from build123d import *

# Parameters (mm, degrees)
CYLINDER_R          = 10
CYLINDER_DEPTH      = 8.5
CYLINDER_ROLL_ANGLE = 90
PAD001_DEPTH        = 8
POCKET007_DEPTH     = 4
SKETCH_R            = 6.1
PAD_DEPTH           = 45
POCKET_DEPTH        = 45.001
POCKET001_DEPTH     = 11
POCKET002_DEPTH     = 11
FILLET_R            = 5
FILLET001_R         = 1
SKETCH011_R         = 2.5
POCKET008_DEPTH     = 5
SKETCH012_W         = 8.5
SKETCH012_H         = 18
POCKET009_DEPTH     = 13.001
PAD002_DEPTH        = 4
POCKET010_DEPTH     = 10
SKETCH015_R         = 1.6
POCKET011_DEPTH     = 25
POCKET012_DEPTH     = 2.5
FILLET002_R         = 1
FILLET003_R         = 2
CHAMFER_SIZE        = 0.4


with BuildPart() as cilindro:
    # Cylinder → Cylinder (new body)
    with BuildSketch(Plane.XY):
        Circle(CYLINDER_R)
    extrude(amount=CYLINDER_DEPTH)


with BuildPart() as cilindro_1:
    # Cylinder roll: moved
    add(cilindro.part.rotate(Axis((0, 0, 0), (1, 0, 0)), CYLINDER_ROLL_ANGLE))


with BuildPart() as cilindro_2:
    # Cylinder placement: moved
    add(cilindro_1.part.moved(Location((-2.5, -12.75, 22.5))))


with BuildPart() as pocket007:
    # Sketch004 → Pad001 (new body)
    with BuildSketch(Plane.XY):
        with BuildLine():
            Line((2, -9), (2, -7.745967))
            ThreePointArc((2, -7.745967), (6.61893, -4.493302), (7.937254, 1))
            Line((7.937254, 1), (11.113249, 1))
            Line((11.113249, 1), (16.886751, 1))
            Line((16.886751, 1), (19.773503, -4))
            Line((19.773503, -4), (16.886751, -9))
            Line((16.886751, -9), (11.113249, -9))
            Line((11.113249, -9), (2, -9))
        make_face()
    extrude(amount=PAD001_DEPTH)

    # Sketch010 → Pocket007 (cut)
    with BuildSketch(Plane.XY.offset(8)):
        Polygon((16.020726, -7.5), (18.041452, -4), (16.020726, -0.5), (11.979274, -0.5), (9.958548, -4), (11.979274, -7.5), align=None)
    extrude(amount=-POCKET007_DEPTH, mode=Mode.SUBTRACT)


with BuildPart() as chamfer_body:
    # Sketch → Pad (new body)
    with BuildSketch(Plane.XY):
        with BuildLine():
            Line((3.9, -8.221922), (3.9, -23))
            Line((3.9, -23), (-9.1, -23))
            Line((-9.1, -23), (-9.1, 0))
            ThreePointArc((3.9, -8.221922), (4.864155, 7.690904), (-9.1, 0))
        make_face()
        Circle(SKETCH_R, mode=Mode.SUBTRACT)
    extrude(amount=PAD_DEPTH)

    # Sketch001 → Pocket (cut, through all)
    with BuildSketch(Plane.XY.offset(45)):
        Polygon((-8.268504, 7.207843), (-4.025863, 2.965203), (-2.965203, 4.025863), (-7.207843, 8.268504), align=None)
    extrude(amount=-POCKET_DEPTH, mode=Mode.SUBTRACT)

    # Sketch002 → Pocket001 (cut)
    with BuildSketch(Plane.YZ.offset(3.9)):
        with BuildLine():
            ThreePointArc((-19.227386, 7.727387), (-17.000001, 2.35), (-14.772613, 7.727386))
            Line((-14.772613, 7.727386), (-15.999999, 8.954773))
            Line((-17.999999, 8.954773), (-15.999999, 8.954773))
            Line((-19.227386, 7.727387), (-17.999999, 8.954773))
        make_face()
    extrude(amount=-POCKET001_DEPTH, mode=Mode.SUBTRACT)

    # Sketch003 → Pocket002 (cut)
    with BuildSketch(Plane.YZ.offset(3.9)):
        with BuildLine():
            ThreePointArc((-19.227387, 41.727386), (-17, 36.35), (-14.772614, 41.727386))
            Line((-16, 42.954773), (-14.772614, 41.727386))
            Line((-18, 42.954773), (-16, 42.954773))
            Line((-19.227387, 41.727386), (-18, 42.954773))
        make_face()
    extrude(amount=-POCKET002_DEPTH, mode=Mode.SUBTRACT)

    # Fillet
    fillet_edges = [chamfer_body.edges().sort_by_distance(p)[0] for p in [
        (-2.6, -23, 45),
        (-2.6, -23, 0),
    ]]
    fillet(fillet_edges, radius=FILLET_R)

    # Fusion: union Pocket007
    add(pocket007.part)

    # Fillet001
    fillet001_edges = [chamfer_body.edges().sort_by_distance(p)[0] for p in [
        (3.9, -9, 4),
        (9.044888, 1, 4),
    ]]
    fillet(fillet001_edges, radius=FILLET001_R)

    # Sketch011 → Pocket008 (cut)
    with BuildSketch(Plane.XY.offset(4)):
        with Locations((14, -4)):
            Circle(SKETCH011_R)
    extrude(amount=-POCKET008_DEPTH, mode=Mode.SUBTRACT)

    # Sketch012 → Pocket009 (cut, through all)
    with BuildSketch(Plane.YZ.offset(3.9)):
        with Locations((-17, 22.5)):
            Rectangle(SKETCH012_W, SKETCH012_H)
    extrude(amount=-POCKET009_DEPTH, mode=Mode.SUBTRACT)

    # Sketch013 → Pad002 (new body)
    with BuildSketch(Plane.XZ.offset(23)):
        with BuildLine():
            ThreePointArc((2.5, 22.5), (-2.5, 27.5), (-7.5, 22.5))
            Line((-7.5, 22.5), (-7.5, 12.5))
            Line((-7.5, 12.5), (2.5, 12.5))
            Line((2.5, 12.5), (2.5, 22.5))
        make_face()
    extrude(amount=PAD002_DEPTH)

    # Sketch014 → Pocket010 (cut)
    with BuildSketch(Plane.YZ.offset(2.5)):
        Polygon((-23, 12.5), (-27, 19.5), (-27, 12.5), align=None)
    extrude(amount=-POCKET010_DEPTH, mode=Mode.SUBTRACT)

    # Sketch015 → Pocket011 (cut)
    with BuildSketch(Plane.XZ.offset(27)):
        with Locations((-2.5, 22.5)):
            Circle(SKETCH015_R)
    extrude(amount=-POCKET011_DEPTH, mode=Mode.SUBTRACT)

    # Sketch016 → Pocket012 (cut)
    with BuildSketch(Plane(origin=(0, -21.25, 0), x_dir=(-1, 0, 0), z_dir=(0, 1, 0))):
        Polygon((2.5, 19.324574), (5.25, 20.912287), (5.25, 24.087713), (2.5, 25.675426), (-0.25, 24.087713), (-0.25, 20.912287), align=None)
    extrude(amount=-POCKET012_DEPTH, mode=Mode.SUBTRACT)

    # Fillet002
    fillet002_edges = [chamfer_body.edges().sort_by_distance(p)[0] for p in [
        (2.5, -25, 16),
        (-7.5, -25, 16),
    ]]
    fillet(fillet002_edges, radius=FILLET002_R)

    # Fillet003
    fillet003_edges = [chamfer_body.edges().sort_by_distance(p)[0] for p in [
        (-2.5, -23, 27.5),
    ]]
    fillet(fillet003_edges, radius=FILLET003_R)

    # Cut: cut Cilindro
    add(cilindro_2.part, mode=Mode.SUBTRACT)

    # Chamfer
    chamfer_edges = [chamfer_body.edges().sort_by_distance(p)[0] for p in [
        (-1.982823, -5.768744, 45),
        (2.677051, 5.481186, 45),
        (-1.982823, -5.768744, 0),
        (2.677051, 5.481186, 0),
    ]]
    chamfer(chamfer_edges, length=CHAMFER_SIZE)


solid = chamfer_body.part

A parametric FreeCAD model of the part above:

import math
import FreeCAD as App
import Part
import Sketcher
Q = App.Units.Quantity


def edges_at(feature, points):
    """Names of the edges that pass closest to the given points."""
    edges = feature.Shape.Edges
    near = lambda p: min(range(len(edges)), key=lambda i: edges[i].distToShape(Part.Vertex(*p))[0])
    return sorted({f"Edge{near(p) + 1}" for p in points})


def add_polygon(sketch, points):
    """Adds a closed chain of lines whose ends are joined by coincident constraints."""
    first, n = sketch.GeometryCount, len(points)
    for a, b in zip(points, points[1:] + points[:1]):
        sketch.addGeometry(Part.LineSegment(App.Vector(*a, 0), App.Vector(*b, 0)), False)
    for i in range(n):
        sketch.addConstraint(Sketcher.Constraint("Coincident", first + i, 2, first + (i + 1) % n, 1))

doc = App.newDocument("Part")
body = doc.addObject("PartDesign::Body", "Body")

# Sketch on XY plane
sketch1 = body.newObject("Sketcher::SketchObject", "Sketch")
sketch1.AttachmentSupport = (doc.getObject("XY_Plane"), [""])
sketch1.MapMode = "FlatFace"
sketch1.addGeometry(Part.Circle(App.Vector(0, 0, 0), App.Vector(0, 0, 1), 10), False)
sketch1.addConstraint(Sketcher.Constraint("Coincident", 0, 3, -1, 1))
sketch1.addConstraint(Sketcher.Constraint("Diameter", 0, Q("20 mm")))
pad1 = body.newObject("PartDesign::Pad", "Pad")
pad1.Profile = sketch1
pad1.Length = 8.5
body2 = doc.addObject("PartDesign::Body", "Body001")
doc.recompute()

body.Placement = App.Placement(App.Vector(0, 0, 0), App.Rotation(App.Vector(1, 0, 0), 90))
boolean = body2.newObject("PartDesign::Boolean", "Boolean")
boolean.Type = "Fuse"
boolean.addObjects([body])
body3 = doc.addObject("PartDesign::Body", "Body002")
doc.recompute()

body2.Placement = App.Placement(App.Vector(-2.5, -12.75, 22.5), App.Rotation(App.Vector(0, 0, 1), 0))
boolean2 = body3.newObject("PartDesign::Boolean", "Boolean001")
boolean2.Type = "Fuse"
boolean2.addObjects([body2])
body4 = doc.addObject("PartDesign::Body", "Body003")

# Sketch on XY plane
sketch2 = body4.newObject("Sketcher::SketchObject", "Sketch001")
sketch2.AttachmentSupport = (doc.getObject("XY_Plane003"), [""])
sketch2.MapMode = "FlatFace"
sketch2.addGeometry(Part.LineSegment(App.Vector(2, -7.7, 0), App.Vector(2, -9, 0)), False)
sketch2.addGeometry(Part.LineSegment(App.Vector(2, -9, 0), App.Vector(16.9, -9, 0)), False)
sketch2.addGeometry(Part.LineSegment(App.Vector(16.9, -9, 0), App.Vector(19.8, -4, 0)), False)
sketch2.addGeometry(Part.LineSegment(App.Vector(19.8, -4, 0), App.Vector(16.9, 1, 0)), False)
sketch2.addGeometry(Part.LineSegment(App.Vector(16.9, 1, 0), App.Vector(7.9, 1, 0)), False)
sketch2.addGeometry(Part.ArcOfCircle(Part.Circle(App.Vector(0, 0, 0), App.Vector(0, 0, 1), 8), math.radians(-76), math.radians(7)), False)
sketch2.addConstraint(Sketcher.Constraint("Coincident", 0, 2, 1, 1))
sketch2.addConstraint(Sketcher.Constraint("Coincident", 1, 2, 2, 1))
sketch2.addConstraint(Sketcher.Constraint("Coincident", 2, 2, 3, 1))
sketch2.addConstraint(Sketcher.Constraint("Coincident", 3, 2, 4, 1))
sketch2.addConstraint(Sketcher.Constraint("Coincident", 4, 2, 5, 2))
sketch2.addConstraint(Sketcher.Constraint("Coincident", 5, 1, 0, 1))
sketch2.addConstraint(Sketcher.Constraint("Vertical", 0))
sketch2.addConstraint(Sketcher.Constraint("Horizontal", 1))
sketch2.addConstraint(Sketcher.Constraint("Horizontal", 4))
sketch2.addConstraint(Sketcher.Constraint("Coincident", 5, 3, -1, 1))
sketch2.addConstraint(Sketcher.Constraint("Vertical", 1, 2, 3, 2))
sketch2.addConstraint(Sketcher.Constraint("Equal", 2, 3))
sketch2.addConstraint(Sketcher.Constraint("Radius", 5, Q("8.000001 mm")))
sketch2.addConstraint(Sketcher.Constraint("Angle", 2, Q("59.999994 deg")))
sketch2.addConstraint(Sketcher.Constraint("DistanceX", -1, 1, 0, 2, Q("2 mm")))
sketch2.addConstraint(Sketcher.Constraint("DistanceY", 0, 2, -1, 1, Q("9 mm")))
sketch2.addConstraint(Sketcher.Constraint("DistanceY", 2, 2, -1, 1, Q("4 mm")))
sketch2.addConstraint(Sketcher.Constraint("DistanceX", 1, 1, 1, 2, Q("14.886751 mm")))
pad2 = body4.newObject("PartDesign::Pad", "Pad001")
pad2.Profile = sketch2
pad2.Length = 8

# Sketch on XY plane
sketch3 = body4.newObject("Sketcher::SketchObject", "Sketch002")
sketch3.AttachmentSupport = (doc.getObject("XY_Plane003"), [""])
sketch3.MapMode = "FlatFace"
sketch3.AttachmentOffset = App.Placement(App.Vector(0, 0, 8), App.Rotation())
add_polygon(sketch3, [(16, -7.5), (18, -4), (16, -0.5), (12, -0.5), (10, -4), (12, -7.5)])  # lines 0-5
sketch3.addConstraint(Sketcher.Constraint("Horizontal", 2))
sketch3.addConstraint(Sketcher.Constraint("Horizontal", 5))
sketch3.addConstraint(Sketcher.Constraint("Parallel", 0, 3))
sketch3.addConstraint(Sketcher.Constraint("Parallel", 1, 4))
sketch3.addConstraint(Sketcher.Constraint("Horizontal", 0, 2, 3, 2))
sketch3.addConstraint(Sketcher.Constraint("Vertical", 2, 2, 4, 2))
sketch3.addConstraint(Sketcher.Constraint("Vertical", 1, 2, 5, 2))
sketch3.addConstraint(Sketcher.Constraint("Angle", 0, Q("59.999999 deg")))
sketch3.addConstraint(Sketcher.Constraint("DistanceY", 0, 2, -1, 1, Q("4 mm")))
sketch3.addConstraint(Sketcher.Constraint("DistanceY", 4, 2, 2, 2, Q("7 mm")))
sketch3.addConstraint(Sketcher.Constraint("DistanceX", 2, 2, 2, 1, Q("4.041452 mm")))
sketch3.addConstraint(Sketcher.Constraint("DistanceX", -1, 1, 0, 2, Q("18.041452 mm")))
pocket1 = body4.newObject("PartDesign::Pocket", "Pocket")
pocket1.Profile = sketch3
pocket1.Length = 4
body5 = doc.addObject("PartDesign::Body", "Body004")

# Sketch on XY plane
sketch4 = body5.newObject("Sketcher::SketchObject", "Sketch003")
sketch4.AttachmentSupport = (doc.getObject("XY_Plane004"), [""])
sketch4.MapMode = "FlatFace"
sketch4.addGeometry(Part.LineSegment(App.Vector(4, -23, 0), App.Vector(4, -8, 0)), False)
sketch4.addGeometry(Part.ArcOfCircle(Part.Circle(App.Vector(0, 0, 0), App.Vector(0, 0, 1), 9), math.radians(-65), math.radians(180)), False)
sketch4.addGeometry(Part.LineSegment(App.Vector(-9, 0, 0), App.Vector(-9, -23, 0)), False)
sketch4.addGeometry(Part.LineSegment(App.Vector(-9, -23, 0), App.Vector(4, -23, 0)), False)
sketch4.addGeometry(Part.Circle(App.Vector(0, 0, 0), App.Vector(0, 0, 1), 6), False)
sketch4.addConstraint(Sketcher.Constraint("Coincident", 0, 2, 1, 1))
sketch4.addConstraint(Sketcher.Constraint("Tangent", 1, 2, 2, 1))
sketch4.addConstraint(Sketcher.Constraint("Coincident", 2, 2, 3, 1))
sketch4.addConstraint(Sketcher.Constraint("Coincident", 3, 2, 0, 1))
sketch4.addConstraint(Sketcher.Constraint("Vertical", 0))
sketch4.addConstraint(Sketcher.Constraint("Vertical", 2))
sketch4.addConstraint(Sketcher.Constraint("Horizontal", 3))
sketch4.addConstraint(Sketcher.Constraint("Coincident", 1, 3, -1, 1))
sketch4.addConstraint(Sketcher.Constraint("Coincident", 4, 3, -1, 1))
sketch4.addConstraint(Sketcher.Constraint("Diameter", 4, Q("12.2 mm")))
sketch4.addConstraint(Sketcher.Constraint("Radius", 1, Q("9.1 mm")))
sketch4.addConstraint(Sketcher.Constraint("DistanceX", 3, 1, 3, 2, Q("13 mm")))
sketch4.addConstraint(Sketcher.Constraint("DistanceY", 2, 2, 2, 1, Q("23 mm")))
pad3 = body5.newObject("PartDesign::Pad", "Pad002")
pad3.Profile = sketch4
pad3.Length = 45

# Sketch on XY plane
sketch5 = body5.newObject("Sketcher::SketchObject", "Sketch004")
sketch5.AttachmentSupport = (doc.getObject("XY_Plane004"), [""])
sketch5.MapMode = "FlatFace"
sketch5.AttachmentOffset = App.Placement(App.Vector(0, 0, 45), App.Rotation())
add_polygon(sketch5, [(-8.3, 7.2), (-4, 3), (-3, 4), (-7.2, 8.3)])  # lines 0-3
sketch5.addConstraint(Sketcher.Constraint("Perpendicular", 0, 1))
sketch5.addConstraint(Sketcher.Constraint("Perpendicular", 1, 2))
sketch5.addConstraint(Sketcher.Constraint("Perpendicular", 2, 3))
sketch5.addConstraint(Sketcher.Constraint("Angle", 0, Q("-44.999993 deg")))
sketch5.addConstraint(Sketcher.Constraint("Distance", 0, Q("6 mm")))
sketch5.addConstraint(Sketcher.Constraint("Distance", 1, Q("1.5 mm")))
sketch5.addConstraint(Sketcher.Constraint("DistanceX", 0, 2, -1, 1, Q("4.025863 mm")))
sketch5.addConstraint(Sketcher.Constraint("DistanceY", -1, 1, 0, 2, Q("2.965203 mm")))
pocket2 = body5.newObject("PartDesign::Pocket", "Pocket001")
pocket2.Profile = sketch5
pocket2.Type = "ThroughAll"

# Sketch on YZ plane
sketch6 = body5.newObject("Sketcher::SketchObject", "Sketch005")
sketch6.AttachmentSupport = (doc.getObject("YZ_Plane004"), [""])
sketch6.MapMode = "FlatFace"
sketch6.AttachmentOffset = App.Placement(App.Vector(0, 0, 3.9), App.Rotation())
sketch6.addGeometry(Part.ArcOfCircle(Part.Circle(App.Vector(-17, 5.5, 0), App.Vector(0, 0, 1), 3.2), math.radians(135), math.radians(405)), False)
sketch6.addGeometry(Part.LineSegment(App.Vector(-14.8, 7.7, 0), App.Vector(-16, 9, 0)), False)
sketch6.addGeometry(Part.LineSegment(App.Vector(-16, 9, 0), App.Vector(-18, 9, 0)), False)
sketch6.addGeometry(Part.LineSegment(App.Vector(-18, 9, 0), App.Vector(-19.2, 7.7, 0)), False)
sketch6.addConstraint(Sketcher.Constraint("Tangent", 0, 2, 1, 1))
sketch6.addConstraint(Sketcher.Constraint("Coincident", 1, 2, 2, 1))
sketch6.addConstraint(Sketcher.Constraint("Coincident", 2, 2, 3, 1))
sketch6.addConstraint(Sketcher.Constraint("Tangent", 3, 2, 0, 1))
sketch6.addConstraint(Sketcher.Constraint("Horizontal", 2))
sketch6.addConstraint(Sketcher.Constraint("Perpendicular", 1, 3))
sketch6.addConstraint(Sketcher.Constraint("Horizontal", 0, 2, 3, 2))
sketch6.addConstraint(Sketcher.Constraint("DistanceX", 2, 2, 2, 1, Q("2 mm")))
sketch6.addConstraint(Sketcher.Constraint("Radius", 0, Q("3.15 mm")))
sketch6.addConstraint(Sketcher.Constraint("DistanceX", 0, 3, -1, 1, Q("17 mm")))
sketch6.addConstraint(Sketcher.Constraint("DistanceY", -1, 1, 0, 3, Q("5.5 mm")))
pocket3 = body5.newObject("PartDesign::Pocket", "Pocket002")
pocket3.Profile = sketch6
pocket3.Length = 11

# Sketch on YZ plane
sketch7 = body5.newObject("Sketcher::SketchObject", "Sketch006")
sketch7.AttachmentSupport = (doc.getObject("YZ_Plane004"), [""])
sketch7.MapMode = "FlatFace"
sketch7.AttachmentOffset = App.Placement(App.Vector(0, 0, 3.9), App.Rotation())
sketch7.addGeometry(Part.ArcOfCircle(Part.Circle(App.Vector(-17, 39.5, 0), App.Vector(0, 0, 1), 3.1), math.radians(135), math.radians(405)), False)
sketch7.addGeometry(Part.LineSegment(App.Vector(-14.8, 41.7, 0), App.Vector(-16, 43, 0)), False)
sketch7.addGeometry(Part.LineSegment(App.Vector(-16, 43, 0), App.Vector(-18, 43, 0)), False)
sketch7.addGeometry(Part.LineSegment(App.Vector(-18, 43, 0), App.Vector(-19.2, 41.7, 0)), False)
sketch7.addConstraint(Sketcher.Constraint("Tangent", 0, 2, 1, 1))
sketch7.addConstraint(Sketcher.Constraint("Coincident", 1, 2, 2, 1))
sketch7.addConstraint(Sketcher.Constraint("Coincident", 2, 2, 3, 1))
sketch7.addConstraint(Sketcher.Constraint("Tangent", 3, 2, 0, 1))
sketch7.addConstraint(Sketcher.Constraint("Horizontal", 2))
sketch7.addConstraint(Sketcher.Constraint("Perpendicular", 1, 3))
sketch7.addConstraint(Sketcher.Constraint("Horizontal", 0, 2, 3, 2))
sketch7.addConstraint(Sketcher.Constraint("DistanceX", 2, 2, 2, 1, Q("2 mm")))
sketch7.addConstraint(Sketcher.Constraint("Radius", 0, Q("3.15 mm")))
sketch7.addConstraint(Sketcher.Constraint("DistanceX", 0, 3, -1, 1, Q("17 mm")))
sketch7.addConstraint(Sketcher.Constraint("DistanceY", -1, 1, 0, 3, Q("39.5 mm")))
pocket4 = body5.newObject("PartDesign::Pocket", "Pocket003")
pocket4.Profile = sketch7
pocket4.Length = 11
doc.recompute()

fillet = body5.newObject("PartDesign::Fillet", "Fillet")
fillet.Base = (pocket4, edges_at(pocket4, [(-2.6, -23, 45), (-2.6, -23, 0)]))
fillet.Radius = 5
doc.recompute()

boolean3 = body5.newObject("PartDesign::Boolean", "Boolean002")
boolean3.Type = "Fuse"
boolean3.addObjects([body4])
doc.recompute()

fillet2 = body5.newObject("PartDesign::Fillet", "Fillet001")
fillet2.Base = (boolean3, edges_at(boolean3, [(3.9, -9, 4), (9.045, 1, 4)]))
fillet2.Radius = 1

# Sketch on XY plane
sketch8 = body5.newObject("Sketcher::SketchObject", "Sketch007")
sketch8.AttachmentSupport = (doc.getObject("XY_Plane004"), [""])
sketch8.MapMode = "FlatFace"
sketch8.AttachmentOffset = App.Placement(App.Vector(0, 0, 4), App.Rotation())
sketch8.addGeometry(Part.Circle(App.Vector(14, -4, 0), App.Vector(0, 0, 1), 2.5), False)
sketch8.addConstraint(Sketcher.Constraint("Diameter", 0, Q("5 mm")))
sketch8.addConstraint(Sketcher.Constraint("DistanceX", -1, 1, 0, 3, Q("14 mm")))
sketch8.addConstraint(Sketcher.Constraint("DistanceY", 0, 3, -1, 1, Q("4 mm")))
pocket5 = body5.newObject("PartDesign::Pocket", "Pocket004")
pocket5.Profile = sketch8
pocket5.Length = 5

# Sketch on YZ plane
sketch9 = body5.newObject("Sketcher::SketchObject", "Sketch008")
sketch9.AttachmentSupport = (doc.getObject("YZ_Plane004"), [""])
sketch9.MapMode = "FlatFace"
sketch9.AttachmentOffset = App.Placement(App.Vector(0, 0, 3.9), App.Rotation())
add_polygon(sketch9, [(-21, 32), (-21, 14), (-13, 14), (-13, 32)])  # lines 0-3
sketch9.addConstraint(Sketcher.Constraint("Vertical", 0))
sketch9.addConstraint(Sketcher.Constraint("Horizontal", 1))
sketch9.addConstraint(Sketcher.Constraint("Vertical", 2))
sketch9.addConstraint(Sketcher.Constraint("Horizontal", 3))
sketch9.addConstraint(Sketcher.Constraint("DistanceY", 0, 2, 0, 1, Q("18 mm")))
sketch9.addConstraint(Sketcher.Constraint("DistanceX", 1, 1, 1, 2, Q("8.5 mm")))
sketch9.addConstraint(Sketcher.Constraint("DistanceY", -1, 1, 0, 2, Q("13.5 mm")))
sketch9.addConstraint(Sketcher.Constraint("DistanceX", 0, 2, -1, 1, Q("21.25 mm")))
pocket6 = body5.newObject("PartDesign::Pocket", "Pocket005")
pocket6.Profile = sketch9
pocket6.Type = "ThroughAll"

# Sketch on XZ plane
sketch10 = body5.newObject("Sketcher::SketchObject", "Sketch009")
sketch10.AttachmentSupport = (doc.getObject("XZ_Plane004"), [""])
sketch10.MapMode = "FlatFace"
sketch10.AttachmentOffset = App.Placement(App.Vector(0, 0, 23), App.Rotation())
sketch10.addGeometry(Part.ArcOfCircle(Part.Circle(App.Vector(-2, 22, 0), App.Vector(0, 0, 1), 5), math.radians(0), math.radians(180)), False)
sketch10.addGeometry(Part.LineSegment(App.Vector(-8, 22, 0), App.Vector(-8, 12, 0)), False)
sketch10.addGeometry(Part.LineSegment(App.Vector(-8, 12, 0), App.Vector(2, 12, 0)), False)
sketch10.addGeometry(Part.LineSegment(App.Vector(2, 12, 0), App.Vector(2, 22, 0)), False)
sketch10.addConstraint(Sketcher.Constraint("Tangent", 0, 2, 1, 1))
sketch10.addConstraint(Sketcher.Constraint("Coincident", 1, 2, 2, 1))
sketch10.addConstraint(Sketcher.Constraint("Coincident", 2, 2, 3, 1))
sketch10.addConstraint(Sketcher.Constraint("Tangent", 3, 2, 0, 1))
sketch10.addConstraint(Sketcher.Constraint("Vertical", 1))
sketch10.addConstraint(Sketcher.Constraint("Horizontal", 2))
sketch10.addConstraint(Sketcher.Constraint("Vertical", 3))
sketch10.addConstraint(Sketcher.Constraint("Equal", 2, 1))
sketch10.addConstraint(Sketcher.Constraint("Radius", 0, Q("5 mm")))
sketch10.addConstraint(Sketcher.Constraint("DistanceX", 0, 3, -1, 1, Q("2.5 mm")))
sketch10.addConstraint(Sketcher.Constraint("DistanceY", -1, 1, 0, 3, Q("22.5 mm")))
pad4 = body5.newObject("PartDesign::Pad", "Pad003")
pad4.Profile = sketch10
pad4.Length = 4

# Sketch on YZ plane
sketch11 = body5.newObject("Sketcher::SketchObject", "Sketch010")
sketch11.AttachmentSupport = (doc.getObject("YZ_Plane004"), [""])
sketch11.MapMode = "FlatFace"
sketch11.AttachmentOffset = App.Placement(App.Vector(0, 0, 2.5), App.Rotation())
add_polygon(sketch11, [(-23, 12.5), (-27, 19.5), (-27, 12.5)])  # lines 0-2
sketch11.addConstraint(Sketcher.Constraint("Vertical", 1))
sketch11.addConstraint(Sketcher.Constraint("Horizontal", 2))
sketch11.addConstraint(Sketcher.Constraint("DistanceX", 2, 1, 2, 2, Q("4 mm")))
sketch11.addConstraint(Sketcher.Constraint("DistanceY", 1, 2, 1, 1, Q("7 mm")))
sketch11.addConstraint(Sketcher.Constraint("DistanceX", 0, 2, -1, 1, Q("27 mm")))
sketch11.addConstraint(Sketcher.Constraint("DistanceY", -1, 1, 0, 2, Q("19.5 mm")))
pocket7 = body5.newObject("PartDesign::Pocket", "Pocket006")
pocket7.Profile = sketch11
pocket7.Length = 10

# Sketch on XZ plane
sketch12 = body5.newObject("Sketcher::SketchObject", "Sketch011")
sketch12.AttachmentSupport = (doc.getObject("XZ_Plane004"), [""])
sketch12.MapMode = "FlatFace"
sketch12.AttachmentOffset = App.Placement(App.Vector(0, 0, 27), App.Rotation())
sketch12.addGeometry(Part.Circle(App.Vector(-2.5, 22.5, 0), App.Vector(0, 0, 1), 1.6), False)
sketch12.addConstraint(Sketcher.Constraint("Diameter", 0, Q("3.2 mm")))
sketch12.addConstraint(Sketcher.Constraint("DistanceX", 0, 3, -1, 1, Q("2.5 mm")))
sketch12.addConstraint(Sketcher.Constraint("DistanceY", -1, 1, 0, 3, Q("22.5 mm")))
pocket8 = body5.newObject("PartDesign::Pocket", "Pocket007")
pocket8.Profile = sketch12
pocket8.Length = 25

# Sketch on XZ plane
sketch13 = body5.newObject("Sketcher::SketchObject", "Sketch012")
sketch13.AttachmentSupport = (doc.getObject("XZ_Plane004"), [""])
sketch13.MapMode = "FlatFace"
sketch13.AttachmentOffset = App.Placement(App.Vector(0, 0, 21.25), App.Rotation())
add_polygon(sketch13, [(-2.5, 19.3), (-5.2, 20.9), (-5.2, 24.1), (-2.5, 25.7), (0.2, 24.1), (0.2, 20.9)])  # lines 0-5
sketch13.addConstraint(Sketcher.Constraint("Vertical", 1))
sketch13.addConstraint(Sketcher.Constraint("Vertical", 4))
sketch13.addConstraint(Sketcher.Constraint("Parallel", 0, 3))
sketch13.addConstraint(Sketcher.Constraint("Parallel", 2, 5))
sketch13.addConstraint(Sketcher.Constraint("Horizontal", 1, 2, 3, 2))
sketch13.addConstraint(Sketcher.Constraint("Horizontal", 0, 2, 4, 2))
sketch13.addConstraint(Sketcher.Constraint("Vertical", 2, 2, 5, 2))
sketch13.addConstraint(Sketcher.Constraint("Angle", 0, Q("150.000004 deg")))
sketch13.addConstraint(Sketcher.Constraint("DistanceX", 2, 2, -1, 1, Q("2.5 mm")))
sketch13.addConstraint(Sketcher.Constraint("DistanceX", 1, 2, 3, 2, Q("5.5 mm")))
sketch13.addConstraint(Sketcher.Constraint("DistanceY", 1, 1, 1, 2, Q("3.175426 mm")))
sketch13.addConstraint(Sketcher.Constraint("DistanceY", -1, 1, 0, 2, Q("20.912287 mm")))
pocket9 = body5.newObject("PartDesign::Pocket", "Pocket008")
pocket9.Profile = sketch13
pocket9.Length = 2.5
pocket9.Reversed = True
doc.recompute()

fillet3 = body5.newObject("PartDesign::Fillet", "Fillet002")
fillet3.Base = (pocket9, edges_at(pocket9, [(2.5, -25, 16), (-7.5, -25, 16)]))
fillet3.Radius = 1
doc.recompute()

fillet4 = body5.newObject("PartDesign::Fillet", "Fillet003")
fillet4.Base = (fillet3, edges_at(fillet3, [(-2.5, -23, 27.5)]))
fillet4.Radius = 2
doc.recompute()

boolean4 = body5.newObject("PartDesign::Boolean", "Boolean003")
boolean4.Type = "Cut"
boolean4.addObjects([body3])
doc.recompute()

chamfer = body5.newObject("PartDesign::Chamfer", "Chamfer")
chamfer.Base = (boolean4, edges_at(boolean4, [
    (4.313, -4.313, 45),
    (4.313, -4.313, 45),
    (4.313, -4.313, 0),
    (4.313, -4.313, 0),
]))
chamfer.Size = 0.4

doc.recompute()
